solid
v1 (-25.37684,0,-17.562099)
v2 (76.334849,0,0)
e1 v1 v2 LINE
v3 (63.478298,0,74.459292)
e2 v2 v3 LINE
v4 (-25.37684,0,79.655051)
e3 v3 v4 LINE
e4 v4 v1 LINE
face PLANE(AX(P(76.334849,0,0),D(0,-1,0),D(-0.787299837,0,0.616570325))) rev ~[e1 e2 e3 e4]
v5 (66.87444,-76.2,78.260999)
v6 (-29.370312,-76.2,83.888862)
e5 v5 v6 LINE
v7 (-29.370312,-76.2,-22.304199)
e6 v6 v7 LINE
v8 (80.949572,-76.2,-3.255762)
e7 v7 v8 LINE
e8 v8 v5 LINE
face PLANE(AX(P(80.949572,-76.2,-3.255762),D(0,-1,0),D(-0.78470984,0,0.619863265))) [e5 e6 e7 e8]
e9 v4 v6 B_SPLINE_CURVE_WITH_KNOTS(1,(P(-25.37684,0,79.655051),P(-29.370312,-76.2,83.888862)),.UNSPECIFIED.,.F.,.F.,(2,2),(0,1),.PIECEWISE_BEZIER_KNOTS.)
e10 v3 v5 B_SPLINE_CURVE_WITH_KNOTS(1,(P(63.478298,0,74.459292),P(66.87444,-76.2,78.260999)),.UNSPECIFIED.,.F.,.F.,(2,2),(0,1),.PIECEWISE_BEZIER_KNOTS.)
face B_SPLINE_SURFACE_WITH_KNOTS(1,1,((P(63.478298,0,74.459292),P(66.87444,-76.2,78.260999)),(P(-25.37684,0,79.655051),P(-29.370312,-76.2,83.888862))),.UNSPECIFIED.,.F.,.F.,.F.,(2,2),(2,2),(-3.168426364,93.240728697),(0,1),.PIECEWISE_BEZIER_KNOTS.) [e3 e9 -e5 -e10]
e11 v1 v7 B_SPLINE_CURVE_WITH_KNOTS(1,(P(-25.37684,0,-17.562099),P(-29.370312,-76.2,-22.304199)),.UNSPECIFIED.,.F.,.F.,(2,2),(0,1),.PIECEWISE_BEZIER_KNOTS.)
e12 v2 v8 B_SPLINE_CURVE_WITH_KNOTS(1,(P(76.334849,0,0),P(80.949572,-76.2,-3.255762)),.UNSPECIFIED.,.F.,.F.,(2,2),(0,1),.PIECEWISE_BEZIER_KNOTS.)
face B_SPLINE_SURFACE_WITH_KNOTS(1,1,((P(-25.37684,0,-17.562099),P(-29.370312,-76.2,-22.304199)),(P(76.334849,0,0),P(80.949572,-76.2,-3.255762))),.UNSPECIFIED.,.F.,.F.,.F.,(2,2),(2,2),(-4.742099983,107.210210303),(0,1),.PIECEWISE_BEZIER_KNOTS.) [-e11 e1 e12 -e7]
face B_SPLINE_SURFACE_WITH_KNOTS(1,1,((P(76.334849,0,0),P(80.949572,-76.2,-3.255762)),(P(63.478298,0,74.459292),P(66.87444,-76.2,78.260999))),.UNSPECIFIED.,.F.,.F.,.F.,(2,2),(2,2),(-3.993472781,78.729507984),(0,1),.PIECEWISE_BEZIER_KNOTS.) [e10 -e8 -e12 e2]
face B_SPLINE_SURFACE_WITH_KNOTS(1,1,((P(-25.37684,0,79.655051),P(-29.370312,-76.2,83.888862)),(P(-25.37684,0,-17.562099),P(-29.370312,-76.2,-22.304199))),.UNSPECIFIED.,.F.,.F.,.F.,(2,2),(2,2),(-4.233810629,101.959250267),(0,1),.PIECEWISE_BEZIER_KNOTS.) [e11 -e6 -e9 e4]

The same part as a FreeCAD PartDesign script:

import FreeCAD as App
import Part
import Sketcher
Q = App.Units.Quantity

doc = App.newDocument("Part")
body = doc.addObject("PartDesign::Body", "Body")

# Sketch on XZ plane
sketch1 = body.newObject("Sketcher::SketchObject", "Sketch")
sketch1.AttachmentSupport = (doc.getObject("XZ_Plane"), [""])
sketch1.MapMode = "FlatFace"
sketch1.addGeometry([
    Part.LineSegment(App.Vector(76, 0, 0), App.Vector(63, 74, 0)),
    Part.LineSegment(App.Vector(63, 74, 0), App.Vector(-25, 80, 0)),
    Part.LineSegment(App.Vector(-25, 80, 0), App.Vector(-25, -18, 0)),
    Part.LineSegment(App.Vector(-25, -18, 0), App.Vector(76, 0, 0)),
], False)
sketch1.addConstraint([
    Sketcher.Constraint("Coincident", 0, 2, 1, 1),
    Sketcher.Constraint("Coincident", 1, 2, 2, 1),
    Sketcher.Constraint("Coincident", 2, 2, 3, 1),
    Sketcher.Constraint("Coincident", 3, 2, 0, 1),
    Sketcher.Constraint("Vertical", 2),
    Sketcher.Constraint("PointOnObject", 3, 2, -1),
    Sketcher.Constraint("Perpendicular", 0, 3),
    Sketcher.Constraint("DistanceY", 2, 2, 2, 1, 97.21715),
    Sketcher.Constraint("DistanceX", -1, 1, 0, 2, 63.478298),
    Sketcher.Constraint("DistanceY", 2, 2, -1, 1, 17.562099),
    Sketcher.Constraint("Distance", 0, 75.561082),
    Sketcher.Constraint("Distance", 1, 89.006918),
])
pad1 = body.newObject("PartDesign::Pad", "Pad")
pad1.Profile = sketch1
pad1.Length = Q("3 in")
pad1.TaperAngle = 3

doc.recompute()
